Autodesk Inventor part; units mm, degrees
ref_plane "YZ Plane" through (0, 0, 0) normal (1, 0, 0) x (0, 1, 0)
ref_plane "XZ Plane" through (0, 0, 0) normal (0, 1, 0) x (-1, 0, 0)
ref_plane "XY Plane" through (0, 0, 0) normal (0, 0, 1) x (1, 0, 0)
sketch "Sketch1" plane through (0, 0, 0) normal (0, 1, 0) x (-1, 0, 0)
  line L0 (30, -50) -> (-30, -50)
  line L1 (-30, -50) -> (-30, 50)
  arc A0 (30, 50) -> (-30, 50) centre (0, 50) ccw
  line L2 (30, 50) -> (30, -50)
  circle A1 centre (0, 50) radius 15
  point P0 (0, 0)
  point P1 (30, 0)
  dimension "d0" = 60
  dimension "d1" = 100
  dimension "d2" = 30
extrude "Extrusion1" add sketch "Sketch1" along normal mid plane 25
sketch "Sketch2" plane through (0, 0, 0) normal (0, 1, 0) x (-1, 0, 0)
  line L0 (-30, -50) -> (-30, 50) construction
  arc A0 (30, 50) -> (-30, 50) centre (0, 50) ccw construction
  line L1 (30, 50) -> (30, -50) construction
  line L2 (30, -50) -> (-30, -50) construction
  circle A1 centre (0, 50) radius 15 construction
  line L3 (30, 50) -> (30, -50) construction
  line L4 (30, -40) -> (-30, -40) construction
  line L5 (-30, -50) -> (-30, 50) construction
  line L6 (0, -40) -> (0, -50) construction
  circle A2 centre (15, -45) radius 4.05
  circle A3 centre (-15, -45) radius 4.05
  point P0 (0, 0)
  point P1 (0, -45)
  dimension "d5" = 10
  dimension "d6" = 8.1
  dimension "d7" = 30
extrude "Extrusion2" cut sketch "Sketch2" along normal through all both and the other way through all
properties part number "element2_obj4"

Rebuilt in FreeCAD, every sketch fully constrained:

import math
import FreeCAD as App
import Part
import Sketcher

doc = App.newDocument("Part")
body = doc.addObject("PartDesign::Body", "Body")

# Sketch on XZ plane
sketch1 = body.newObject("Sketcher::SketchObject", "Sketch")
sketch1.AttachmentSupport = (doc.getObject("XZ_Plane"), [""])
sketch1.MapMode = "FlatFace"
sketch1.addGeometry([
    Part.LineSegment(App.Vector(30, -50, 0), App.Vector(-30, -50, 0)),  # 0
    Part.LineSegment(App.Vector(-30, -50, 0), App.Vector(-30, 50, 0)),  # 1
    Part.ArcOfCircle(Part.Circle(App.Vector(0, 50, 0), App.Vector(0, 0, 1), 30), math.radians(0), math.radians(180)),  # 2
    Part.LineSegment(App.Vector(30, 50, 0), App.Vector(30, -50, 0)),  # 3
    Part.Circle(App.Vector(0, 50, 0), App.Vector(0, 0, 1), 15),  # 4
], False)
sketch1.addConstraint([
    Sketcher.Constraint("Coincident", 0, 2, 1, 1),
    Sketcher.Constraint("Tangent", 1, 2, 2, 2),
    Sketcher.Constraint("Tangent", 2, 1, 3, 1),
    Sketcher.Constraint("Coincident", 3, 2, 0, 1),
    Sketcher.Constraint("Horizontal", 0),
    Sketcher.Constraint("Vertical", 1),
    Sketcher.Constraint("Vertical", 3),
    Sketcher.Constraint("Coincident", 4, 3, 2, 3),
    Sketcher.Constraint("Symmetric", 0, 2, 2, 1, -1, 1),
    Sketcher.Constraint("Diameter", 4, 30.0),
    Sketcher.Constraint("Radius", 2, 30.0),
    Sketcher.Constraint("DistanceY", 1, 1, 1, 2, 100.0),
])
pad1 = body.newObject("PartDesign::Pad", "Pad")
pad1.Profile = sketch1
pad1.Length = 25
pad1.Midplane = True

# Sketch on XZ plane
sketch2 = body.newObject("Sketcher::SketchObject", "Sketch001")
sketch2.AttachmentSupport = (doc.getObject("XZ_Plane"), [""])
sketch2.MapMode = "FlatFace"
sketch2.addGeometry([
    Part.Circle(App.Vector(-15, -45, 0), App.Vector(0, 0, 1), 4),
    Part.Circle(App.Vector(15, -45, 0), App.Vector(0, 0, 1), 4),
], False)
sketch2.addConstraint([
    Sketcher.Constraint("Equal", 0, 1),
    Sketcher.Constraint("Symmetric", 0, 3, 1, 3, -2),
    Sketcher.Constraint("Diameter", 0, 8.1),
    Sketcher.Constraint("DistanceX", 0, 3, 1, 3, 30.0),
    Sketcher.Constraint("DistanceY", 0, 3, -1, 1, 45.0),
])
pocket1 = body.newObject("PartDesign::Pocket", "Pocket")
pocket1.Profile = sketch2
pocket1.Type = "ThroughAll"
pocket1.Midplane = True

doc.recompute()
